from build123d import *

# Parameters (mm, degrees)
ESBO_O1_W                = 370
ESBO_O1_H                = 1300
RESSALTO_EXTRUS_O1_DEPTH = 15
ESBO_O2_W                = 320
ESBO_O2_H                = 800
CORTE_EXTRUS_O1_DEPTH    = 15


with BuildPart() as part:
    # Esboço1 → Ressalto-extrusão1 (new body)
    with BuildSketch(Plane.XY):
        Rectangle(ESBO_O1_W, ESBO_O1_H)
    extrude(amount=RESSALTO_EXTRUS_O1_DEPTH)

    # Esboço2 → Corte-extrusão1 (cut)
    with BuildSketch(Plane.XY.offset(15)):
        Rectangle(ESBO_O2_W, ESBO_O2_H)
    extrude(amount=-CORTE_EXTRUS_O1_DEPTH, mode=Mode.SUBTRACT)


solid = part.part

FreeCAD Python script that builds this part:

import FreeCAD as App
import Part
import Sketcher
Q = App.Units.Quantity

doc = App.newDocument("Part")
body = doc.addObject("PartDesign::Body", "Body")

sketch1 = body.newObject("Sketcher::SketchObject", "Sketch")
sketch1.AttachmentSupport = (doc.getObject("XY_Plane"), [""])
sketch1.MapMode = "FlatFace"
sketch1.addGeometry([
    Part.LineSegment(App.Vector(-185, 650, 0), App.Vector(-185, -650, 0)),
    Part.LineSegment(App.Vector(-185, -650, 0), App.Vector(185, -650, 0)),
    Part.LineSegment(App.Vector(185, -650, 0), App.Vector(185, 650, 0)),
    Part.LineSegment(App.Vector(185, 650, 0), App.Vector(-185, 650, 0)),
], False)
sketch1.addConstraint([
    Sketcher.Constraint("Coincident", 0, 2, 1, 1),
    Sketcher.Constraint("Coincident", 1, 2, 2, 1),
    Sketcher.Constraint("Coincident", 2, 2, 3, 1),
    Sketcher.Constraint("Coincident", 3, 2, 0, 1),
    Sketcher.Constraint("Vertical", 0),
    Sketcher.Constraint("Horizontal", 1),
    Sketcher.Constraint("Vertical", 2),
    Sketcher.Constraint("Horizontal", 3),
    Sketcher.Constraint("Symmetric", 0, 2, 2, 2, -1, 1),
    Sketcher.Constraint("DistanceX", 1, 1, 1, 2, Q("370 mm")),
    Sketcher.Constraint("DistanceY", 0, 2, 0, 1, Q("1300 mm")),
])
pad1 = body.newObject("PartDesign::Pad", "Pad")
pad1.Profile = sketch1
pad1.Length = 15

sketch2 = body.newObject("Sketcher::SketchObject", "Sketch001")
sketch2.AttachmentSupport = (doc.getObject("XY_Plane"), [""])
sketch2.MapMode = "FlatFace"
sketch2.AttachmentOffset = App.Placement(App.Vector(0, 0, 15), App.Rotation())
sketch2.addGeometry([
    Part.LineSegment(App.Vector(-160, 400, 0), App.Vector(-160, -400, 0)),
    Part.LineSegment(App.Vector(-160, -400, 0), App.Vector(160, -400, 0)),
    Part.LineSegment(App.Vector(160, -400, 0), App.Vector(160, 400, 0)),
    Part.LineSegment(App.Vector(160, 400, 0), App.Vector(-160, 400, 0)),
], False)
sketch2.addConstraint([
    Sketcher.Constraint("Coincident", 0, 2, 1, 1),
    Sketcher.Constraint("Coincident", 1, 2, 2, 1),
    Sketcher.Constraint("Coincident", 2, 2, 3, 1),
    Sketcher.Constraint("Coincident", 3, 2, 0, 1),
    Sketcher.Constraint("Vertical", 0),
    Sketcher.Constraint("Horizontal", 1),
    Sketcher.Constraint("Vertical", 2),
    Sketcher.Constraint("Horizontal", 3),
    Sketcher.Constraint("Symmetric", 0, 2, 2, 2, -1, 1),
    Sketcher.Constraint("DistanceX", 1, 1, 1, 2, Q("320 mm")),
    Sketcher.Constraint("DistanceY", 0, 2, 0, 1, Q("800 mm")),
])
pocket1 = body.newObject("PartDesign::Pocket", "Pocket")
pocket1.Profile = sketch2
pocket1.Length = 15

doc.recompute()
